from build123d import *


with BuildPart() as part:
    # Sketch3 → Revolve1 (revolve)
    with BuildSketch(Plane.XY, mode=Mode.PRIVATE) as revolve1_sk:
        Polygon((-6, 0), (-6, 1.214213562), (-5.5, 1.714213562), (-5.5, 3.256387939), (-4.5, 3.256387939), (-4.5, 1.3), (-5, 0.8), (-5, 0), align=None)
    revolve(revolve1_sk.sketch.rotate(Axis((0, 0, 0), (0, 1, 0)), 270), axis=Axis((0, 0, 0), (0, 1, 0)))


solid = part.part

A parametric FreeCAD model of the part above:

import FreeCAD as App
import Part
import Sketcher

V = App.Vector
Q = App.Units.Quantity

doc = App.newDocument("Part")
body = doc.addObject("PartDesign::Body", "Body")

# Sketch on XY plane
sketch1 = doc.addObject("Sketcher::SketchObject", "Sketch")
body.addObject(sketch1)
sketch1.AttachmentSupport = (doc.XY_Plane, [""])
sketch1.MapMode = "FlatFace"
sketch1.addGeometry([
    Part.LineSegment(V(-6, 1.2, 0), V(-6, 0, 0)),  # 0
    Part.LineSegment(V(-6, 0, 0), V(-5, 0, 0)),  # 1
    Part.LineSegment(V(-5, 0, 0), V(-5, 0.8, 0)),  # 2
    Part.LineSegment(V(-5, 0.8, 0), V(-4.5, 1.3, 0)),  # 3
    Part.LineSegment(V(-4.5, 1.3, 0), V(-4.5, 3.3, 0)),  # 4
    Part.LineSegment(V(-4.5, 3.3, 0), V(-5.5, 3.3, 0)),  # 5
    Part.LineSegment(V(-5.5, 3.3, 0), V(-5.5, 1.7, 0)),  # 6
    Part.LineSegment(V(-5.5, 1.7, 0), V(-6, 1.2, 0)),  # 7
], False)
sketch1.addConstraint([
    Sketcher.Constraint("Coincident", 0, 2, 1, 1),
    Sketcher.Constraint("Coincident", 1, 2, 2, 1),
    Sketcher.Constraint("Coincident", 2, 2, 3, 1),
    Sketcher.Constraint("Coincident", 3, 2, 4, 1),
    Sketcher.Constraint("Coincident", 4, 2, 5, 1),
    Sketcher.Constraint("Coincident", 5, 2, 6, 1),
    Sketcher.Constraint("Coincident", 6, 2, 7, 1),
    Sketcher.Constraint("Coincident", 7, 2, 0, 1),
    Sketcher.Constraint("Vertical", 0),
    Sketcher.Constraint("Horizontal", 1),
    Sketcher.Constraint("Vertical", 2),
    Sketcher.Constraint("Vertical", 4),
    Sketcher.Constraint("Horizontal", 5),
    Sketcher.Constraint("Vertical", 6),
    Sketcher.Constraint("PointOnObject", 0, 2, -1),
    Sketcher.Constraint("Parallel", 3, 7),
    Sketcher.Constraint("Equal", 1, 5),
    Sketcher.Constraint("DistanceX", 1, 1, 1, 2, Q("1 mm")),
    Sketcher.Constraint("Angle", 3, Q("45 deg")),
    Sketcher.Constraint("DistanceY", 2, 1, 2, 2, Q("0.8 mm")),
    Sketcher.Constraint("DistanceX", 0, 2, -1, 1, Q("6 mm")),
    Sketcher.Constraint("DistanceX", 3, 2, -1, 1, Q("4.5 mm")),
    Sketcher.Constraint("DistanceY", 0, 2, 0, 1, Q("1.214214 mm")),
    Sketcher.Constraint("DistanceY", 4, 1, 4, 2, Q("1.956388 mm")),
])
revolution = doc.addObject("PartDesign::Revolution", "Revolution")
body.addObject(revolution)
revolution.Profile = sketch1
revolution.ReferenceAxis = (sketch1, ["V_Axis"])
revolution.Angle = 360

doc.recompute()
